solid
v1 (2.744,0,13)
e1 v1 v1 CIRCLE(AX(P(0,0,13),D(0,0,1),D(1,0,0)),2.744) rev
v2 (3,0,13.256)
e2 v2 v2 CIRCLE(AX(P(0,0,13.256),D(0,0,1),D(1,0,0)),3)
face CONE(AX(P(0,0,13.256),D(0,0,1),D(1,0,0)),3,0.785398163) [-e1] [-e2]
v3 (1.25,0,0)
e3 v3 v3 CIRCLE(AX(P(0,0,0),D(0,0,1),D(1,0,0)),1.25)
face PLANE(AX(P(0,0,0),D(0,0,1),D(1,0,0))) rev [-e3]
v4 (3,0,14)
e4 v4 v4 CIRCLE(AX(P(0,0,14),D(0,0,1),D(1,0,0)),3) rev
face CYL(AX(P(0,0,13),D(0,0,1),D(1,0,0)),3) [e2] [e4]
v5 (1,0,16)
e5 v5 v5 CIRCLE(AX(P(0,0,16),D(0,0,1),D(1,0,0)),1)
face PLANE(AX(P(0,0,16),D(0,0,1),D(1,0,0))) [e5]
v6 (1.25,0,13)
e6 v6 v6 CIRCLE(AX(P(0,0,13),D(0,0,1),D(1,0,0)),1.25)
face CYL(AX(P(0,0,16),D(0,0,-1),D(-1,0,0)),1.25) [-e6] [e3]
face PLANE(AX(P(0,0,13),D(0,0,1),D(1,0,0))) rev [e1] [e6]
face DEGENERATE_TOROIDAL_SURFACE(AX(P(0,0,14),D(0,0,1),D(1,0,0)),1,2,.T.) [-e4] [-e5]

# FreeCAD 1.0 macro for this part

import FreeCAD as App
import Part
import Sketcher

V = App.Vector


def edges_at(feature, points):
    """Names of the edges that pass closest to the given points."""
    edges = feature.Shape.Edges
    near = lambda p: min(range(len(edges)), key=lambda i: edges[i].distToShape(Part.Vertex(*p))[0])
    return sorted({f"Edge{near(p) + 1}" for p in points})

doc = App.newDocument("Part")
body = doc.addObject("PartDesign::Body", "Body")

# Sketch on XY plane
sketch1 = body.newObject("Sketcher::SketchObject", "Sketch")
sketch1.AttachmentSupport = (doc.getObject("XY_Plane"), [""])
sketch1.MapMode = "FlatFace"
sketch1.addGeometry(Part.Circle(V(0, 0, 0), V(0, 0, 1), 1.25), False)
sketch1.addConstraint(Sketcher.Constraint("Coincident", 0, 3, -1, 1))
sketch1.addConstraint(Sketcher.Constraint("Diameter", 0, 2.5))
pad1 = body.newObject("PartDesign::Pad", "Pad")
pad1.Profile = sketch1
pad1.Length = 16

# Sketch on XY plane
sketch2 = body.newObject("Sketcher::SketchObject", "Sketch001")
sketch2.AttachmentSupport = (doc.getObject("XY_Plane"), [""])
sketch2.MapMode = "FlatFace"
sketch2.AttachmentOffset = App.Placement(V(0, 0, 16), App.Rotation())
sketch2.addGeometry(Part.Circle(V(0, 0, 0), V(0, 0, 1), 3), False)
sketch2.addConstraint(Sketcher.Constraint("Coincident", 0, 3, -1, 1))
sketch2.addConstraint(Sketcher.Constraint("Diameter", 0, 6.0))
pad2 = body.newObject("PartDesign::Pad", "Pad001")
pad2.Profile = sketch2
pad2.Length = 3
pad2.Reversed = True
doc.recompute()

fillet = body.newObject("PartDesign::Fillet", "Fillet")
fillet.Base = (pad2, edges_at(pad2, [(-3, 0, 16)]))
fillet.Radius = 2
doc.recompute()

chamfer = body.newObject("PartDesign::Chamfer", "Chamfer")
chamfer.Base = (fillet, edges_at(fillet, [(-3, 0, 13)]))
chamfer.Size = 0.256

doc.recompute()
